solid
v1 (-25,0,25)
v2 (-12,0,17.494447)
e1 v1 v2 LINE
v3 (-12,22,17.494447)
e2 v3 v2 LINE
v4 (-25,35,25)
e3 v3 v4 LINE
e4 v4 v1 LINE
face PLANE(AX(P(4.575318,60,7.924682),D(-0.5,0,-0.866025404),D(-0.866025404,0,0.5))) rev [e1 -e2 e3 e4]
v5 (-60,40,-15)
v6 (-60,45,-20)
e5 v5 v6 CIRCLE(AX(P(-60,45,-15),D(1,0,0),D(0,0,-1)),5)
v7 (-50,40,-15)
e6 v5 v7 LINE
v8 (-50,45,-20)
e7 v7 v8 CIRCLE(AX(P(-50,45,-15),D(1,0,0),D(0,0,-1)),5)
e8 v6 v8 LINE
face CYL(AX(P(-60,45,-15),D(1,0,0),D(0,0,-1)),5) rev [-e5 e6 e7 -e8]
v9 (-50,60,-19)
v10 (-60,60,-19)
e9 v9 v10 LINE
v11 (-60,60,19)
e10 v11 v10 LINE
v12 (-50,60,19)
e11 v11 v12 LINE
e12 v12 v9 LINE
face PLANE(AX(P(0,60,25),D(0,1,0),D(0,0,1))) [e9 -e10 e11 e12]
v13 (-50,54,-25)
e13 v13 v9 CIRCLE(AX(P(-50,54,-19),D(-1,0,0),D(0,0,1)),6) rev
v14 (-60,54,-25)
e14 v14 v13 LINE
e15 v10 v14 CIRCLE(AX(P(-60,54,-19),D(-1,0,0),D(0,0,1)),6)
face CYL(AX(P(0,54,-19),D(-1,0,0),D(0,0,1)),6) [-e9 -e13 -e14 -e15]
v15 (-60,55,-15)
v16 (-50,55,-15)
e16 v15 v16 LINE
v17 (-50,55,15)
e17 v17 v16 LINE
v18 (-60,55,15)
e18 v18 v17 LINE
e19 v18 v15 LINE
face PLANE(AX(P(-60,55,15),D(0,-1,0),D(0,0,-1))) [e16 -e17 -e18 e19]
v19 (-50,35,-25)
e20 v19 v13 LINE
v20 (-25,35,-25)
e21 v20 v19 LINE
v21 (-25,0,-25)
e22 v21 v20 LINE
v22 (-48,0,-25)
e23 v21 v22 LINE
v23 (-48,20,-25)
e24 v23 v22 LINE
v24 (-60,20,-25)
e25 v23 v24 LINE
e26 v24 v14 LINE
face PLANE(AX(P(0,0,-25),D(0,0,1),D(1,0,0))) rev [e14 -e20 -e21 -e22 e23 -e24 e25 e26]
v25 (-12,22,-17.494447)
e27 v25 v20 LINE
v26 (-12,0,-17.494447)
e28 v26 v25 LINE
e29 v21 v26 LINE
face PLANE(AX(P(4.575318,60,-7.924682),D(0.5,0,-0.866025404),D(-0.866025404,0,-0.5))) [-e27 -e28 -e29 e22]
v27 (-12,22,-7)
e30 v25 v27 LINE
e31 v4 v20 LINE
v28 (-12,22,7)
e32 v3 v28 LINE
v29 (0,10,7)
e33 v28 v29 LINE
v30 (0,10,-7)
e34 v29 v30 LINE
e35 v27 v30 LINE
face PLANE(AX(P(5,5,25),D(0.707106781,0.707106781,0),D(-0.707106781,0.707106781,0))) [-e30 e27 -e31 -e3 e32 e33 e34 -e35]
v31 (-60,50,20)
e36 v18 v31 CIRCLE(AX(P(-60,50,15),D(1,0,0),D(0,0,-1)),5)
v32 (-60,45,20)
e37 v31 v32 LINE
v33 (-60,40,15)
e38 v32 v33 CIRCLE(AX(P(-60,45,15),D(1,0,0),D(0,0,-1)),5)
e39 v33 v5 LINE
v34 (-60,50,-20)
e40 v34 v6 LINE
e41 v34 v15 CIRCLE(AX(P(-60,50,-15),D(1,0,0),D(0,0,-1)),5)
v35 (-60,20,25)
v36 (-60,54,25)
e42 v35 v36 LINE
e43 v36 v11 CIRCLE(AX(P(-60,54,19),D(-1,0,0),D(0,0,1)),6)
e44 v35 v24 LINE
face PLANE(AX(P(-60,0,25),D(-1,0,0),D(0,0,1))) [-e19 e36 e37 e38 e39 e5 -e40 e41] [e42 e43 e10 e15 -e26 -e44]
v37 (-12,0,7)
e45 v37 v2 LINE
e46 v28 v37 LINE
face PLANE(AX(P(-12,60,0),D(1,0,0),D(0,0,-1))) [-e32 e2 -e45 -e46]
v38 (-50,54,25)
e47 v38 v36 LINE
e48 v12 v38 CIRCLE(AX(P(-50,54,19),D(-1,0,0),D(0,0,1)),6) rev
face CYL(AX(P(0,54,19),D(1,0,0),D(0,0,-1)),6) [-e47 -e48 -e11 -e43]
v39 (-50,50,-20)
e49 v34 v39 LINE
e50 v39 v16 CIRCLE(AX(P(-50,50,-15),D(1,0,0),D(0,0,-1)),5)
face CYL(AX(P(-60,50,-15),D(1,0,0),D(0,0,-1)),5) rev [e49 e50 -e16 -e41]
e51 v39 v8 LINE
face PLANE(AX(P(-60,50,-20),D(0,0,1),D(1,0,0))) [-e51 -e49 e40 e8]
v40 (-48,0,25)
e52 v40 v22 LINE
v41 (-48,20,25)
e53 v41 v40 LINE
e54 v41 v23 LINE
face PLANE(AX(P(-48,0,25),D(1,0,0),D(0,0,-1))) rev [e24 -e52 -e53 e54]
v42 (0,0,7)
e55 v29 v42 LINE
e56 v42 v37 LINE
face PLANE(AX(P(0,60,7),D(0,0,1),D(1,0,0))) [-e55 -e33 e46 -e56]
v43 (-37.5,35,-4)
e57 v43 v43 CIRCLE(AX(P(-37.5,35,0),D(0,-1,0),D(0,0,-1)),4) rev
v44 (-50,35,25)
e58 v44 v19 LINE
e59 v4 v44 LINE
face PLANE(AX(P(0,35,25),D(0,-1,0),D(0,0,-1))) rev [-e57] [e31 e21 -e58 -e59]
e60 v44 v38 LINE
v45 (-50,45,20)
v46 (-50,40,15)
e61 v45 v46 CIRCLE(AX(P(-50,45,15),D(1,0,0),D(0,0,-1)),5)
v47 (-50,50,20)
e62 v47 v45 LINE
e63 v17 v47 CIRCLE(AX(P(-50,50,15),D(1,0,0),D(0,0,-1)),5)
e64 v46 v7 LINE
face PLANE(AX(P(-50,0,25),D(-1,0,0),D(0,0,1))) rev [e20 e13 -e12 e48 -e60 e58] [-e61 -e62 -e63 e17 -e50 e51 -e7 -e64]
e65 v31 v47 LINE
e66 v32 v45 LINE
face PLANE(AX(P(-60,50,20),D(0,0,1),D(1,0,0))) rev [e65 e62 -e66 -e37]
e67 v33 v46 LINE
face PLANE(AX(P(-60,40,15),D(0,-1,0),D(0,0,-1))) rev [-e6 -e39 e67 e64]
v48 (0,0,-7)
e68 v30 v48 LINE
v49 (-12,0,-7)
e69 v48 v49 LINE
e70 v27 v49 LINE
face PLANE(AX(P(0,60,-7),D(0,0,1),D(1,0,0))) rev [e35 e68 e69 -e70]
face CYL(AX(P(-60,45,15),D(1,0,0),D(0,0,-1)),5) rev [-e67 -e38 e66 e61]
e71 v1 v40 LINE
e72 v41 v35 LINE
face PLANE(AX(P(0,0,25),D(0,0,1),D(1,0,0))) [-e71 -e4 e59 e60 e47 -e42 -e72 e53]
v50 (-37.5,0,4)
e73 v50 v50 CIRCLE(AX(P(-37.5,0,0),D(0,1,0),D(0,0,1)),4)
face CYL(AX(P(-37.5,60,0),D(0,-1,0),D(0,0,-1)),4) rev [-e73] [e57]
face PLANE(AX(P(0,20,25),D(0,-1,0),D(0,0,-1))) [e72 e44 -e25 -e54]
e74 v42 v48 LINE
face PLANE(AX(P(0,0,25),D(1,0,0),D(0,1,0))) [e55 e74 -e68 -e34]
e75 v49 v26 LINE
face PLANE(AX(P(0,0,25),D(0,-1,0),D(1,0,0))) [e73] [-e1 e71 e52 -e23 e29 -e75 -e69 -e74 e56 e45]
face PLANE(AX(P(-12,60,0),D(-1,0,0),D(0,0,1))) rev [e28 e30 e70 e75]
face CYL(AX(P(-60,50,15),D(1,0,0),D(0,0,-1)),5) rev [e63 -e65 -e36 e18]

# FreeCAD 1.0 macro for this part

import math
import FreeCAD as App
import Part
import Sketcher
Q = App.Units.Quantity


def edges_at(feature, points):
    """Names of the edges that pass closest to the given points."""
    edges = feature.Shape.Edges
    near = lambda p: min(range(len(edges)), key=lambda i: edges[i].distToShape(Part.Vertex(*p))[0])
    return sorted({f"Edge{near(p) + 1}" for p in points})


def add_polygon(sketch, points):
    """Adds a closed chain of lines whose ends are joined by coincident constraints."""
    first, n = sketch.GeometryCount, len(points)
    for a, b in zip(points, points[1:] + points[:1]):
        sketch.addGeometry(Part.LineSegment(App.Vector(*a, 0), App.Vector(*b, 0)), False)
    for i in range(n):
        sketch.addConstraint(Sketcher.Constraint("Coincident", first + i, 2, first + (i + 1) % n, 1))

doc = App.newDocument("Part")
body = doc.addObject("PartDesign::Body", "Body")

sketch1 = body.newObject("Sketcher::SketchObject", "Sketch")
sketch1.AttachmentSupport = (doc.getObject("XY_Plane"), [""])
sketch1.MapMode = "FlatFace"
add_polygon(sketch1, [(-60, 60), (-60, 20), (-48, 20), (-48, 0), (0, 0), (0, 10), (-25, 35), (-50, 35), (-50, 60)])
sketch1.addConstraint(Sketcher.Constraint("Vertical", 0))
sketch1.addConstraint(Sketcher.Constraint("Horizontal", 1))
sketch1.addConstraint(Sketcher.Constraint("Vertical", 2))
sketch1.addConstraint(Sketcher.Constraint("Horizontal", 3))
sketch1.addConstraint(Sketcher.Constraint("Vertical", 4))
sketch1.addConstraint(Sketcher.Constraint("Horizontal", 6))
sketch1.addConstraint(Sketcher.Constraint("Vertical", 7))
sketch1.addConstraint(Sketcher.Constraint("Horizontal", 8))
sketch1.addConstraint(Sketcher.Constraint("Coincident", 3, 2, -1, 1))
sketch1.addConstraint(Sketcher.Constraint("Equal", 8, 4))
sketch1.addConstraint(Sketcher.Constraint("Equal", 6, 7))
sketch1.addConstraint(Sketcher.Constraint("DistanceX", 1, 1, 1, 2, 12.0))
sketch1.addConstraint(Sketcher.Constraint("DistanceX", 3, 1, 3, 2, 48.0))
sketch1.addConstraint(Sketcher.Constraint("DistanceX", 6, 2, 6, 1, 25.0))
sketch1.addConstraint(Sketcher.Constraint("DistanceX", 8, 2, 8, 1, 10.0))
sketch1.addConstraint(Sketcher.Constraint("DistanceY", 0, 2, 0, 1, 40.0))
sketch1.addConstraint(Sketcher.Constraint("DistanceY", 2, 2, 2, 1, 20.0))
pad1 = body.newObject("PartDesign::Pad", "Pad")
pad1.Profile = sketch1
pad1.Length = 50
pad1.Midplane = True

sketch2 = body.newObject("Sketcher::SketchObject", "Sketch001")
sketch2.AttachmentSupport = (doc.getObject("XZ_Plane"), [""])
sketch2.MapMode = "FlatFace"
sketch2.addGeometry(Part.Circle(App.Vector(-37.5, 0, 0), App.Vector(0, 0, 1), 4), False)
sketch2.addConstraint(Sketcher.Constraint("PointOnObject", 0, 3, -1))
sketch2.addConstraint(Sketcher.Constraint("Diameter", 0, 8.0))
sketch2.addConstraint(Sketcher.Constraint("DistanceX", 0, 3, -1, 1, 37.5))
pocket1 = body.newObject("PartDesign::Pocket", "Pocket")
pocket1.Profile = sketch2
pocket1.Type = "ThroughAll"

sketch3 = body.newObject("Sketcher::SketchObject", "Sketch002")
sketch3.AttachmentSupport = (doc.getObject("XZ_Plane"), [""])
sketch3.MapMode = "FlatFace"
add_polygon(sketch3, [(0, -25), (-25, -25), (-12, -17), (0, -11)])
add_polygon(sketch3, [(-12, 17), (-25, 25), (0, 25), (0, 11)])
sketch3.addConstraint(Sketcher.Constraint("Horizontal", 0))
sketch3.addConstraint(Sketcher.Constraint("Vertical", 3))
sketch3.addConstraint(Sketcher.Constraint("Horizontal", 5))
sketch3.addConstraint(Sketcher.Constraint("Vertical", 6))
sketch3.addConstraint(Sketcher.Constraint("Symmetric", 3, 2, 5, 2, -1, 1))
sketch3.addConstraint(Sketcher.Constraint("Symmetric", 2, 2, 6, 2, -1))
sketch3.addConstraint(Sketcher.Constraint("Symmetric", 1, 2, 7, 2, -1))
sketch3.addConstraint(Sketcher.Constraint("Parallel", 1, 2))
sketch3.addConstraint(Sketcher.Constraint("Parallel", 4, 7))
sketch3.addConstraint(Sketcher.Constraint("DistanceX", 0, 2, 0, 1, 25.0))
sketch3.addConstraint(Sketcher.Constraint("Angle", 1, Q("30 deg")))
sketch3.addConstraint(Sketcher.Constraint("DistanceY", 0, 2, -1, 1, 25.0))
sketch3.addConstraint(Sketcher.Constraint("DistanceX", 1, 2, -1, 1, 12.0))
pocket2 = body.newObject("PartDesign::Pocket", "Pocket001")
pocket2.Profile = sketch3
pocket2.Type = "ThroughAll"

sketch4 = body.newObject("Sketcher::SketchObject", "Sketch003")
sketch4.AttachmentSupport = (doc.getObject("XZ_Plane"), [""])
sketch4.MapMode = "FlatFace"
add_polygon(sketch4, [(0, -10.6), (-12, -17.5), (-12, -7), (0, -7)])
add_polygon(sketch4, [(-12, 7), (-12, 17.5), (0, 10.6), (0, 7)])
sketch4.addConstraint(Sketcher.Constraint("Vertical", 1))
sketch4.addConstraint(Sketcher.Constraint("Horizontal", 2))
sketch4.addConstraint(Sketcher.Constraint("Vertical", 3))
sketch4.addConstraint(Sketcher.Constraint("Vertical", 4))
sketch4.addConstraint(Sketcher.Constraint("Vertical", 6))
sketch4.addConstraint(Sketcher.Constraint("Horizontal", 7))
sketch4.addConstraint(Sketcher.Constraint("Symmetric", 3, 2, 5, 2, -1, 1))
sketch4.addConstraint(Sketcher.Constraint("Symmetric", 0, 2, 4, 2, -1))
sketch4.addConstraint(Sketcher.Constraint("Symmetric", 2, 2, 6, 2, -1))
sketch4.addConstraint(Sketcher.Constraint("DistanceX", 2, 1, 2, 2, 12.0))
sketch4.addConstraint(Sketcher.Constraint("Angle", 0, Q("-150 deg")))
sketch4.addConstraint(Sketcher.Constraint("DistanceY", 1, 2, -1, 1, 7.0))
sketch4.addConstraint(Sketcher.Constraint("DistanceY", 1, 1, 1, 2, 10.494447))
pocket3 = body.newObject("PartDesign::Pocket", "Pocket002")
pocket3.Profile = sketch4
pocket3.Type = "ThroughAll"

sketch5 = body.newObject("Sketcher::SketchObject", "Sketch004")
sketch5.AttachmentSupport = (doc.getObject("YZ_Plane"), [""])
sketch5.MapMode = "FlatFace"
sketch5.AttachmentOffset = App.Placement(App.Vector(0, 0, -50), App.Rotation())
sketch5.addGeometry(Part.LineSegment(App.Vector(55, -15, 0), App.Vector(55, 15, 0)), False)
sketch5.addGeometry(Part.ArcOfCircle(Part.Circle(App.Vector(50, 15, 0), App.Vector(0, 0, 1), 5), math.radians(0), math.radians(90)), False)
sketch5.addGeometry(Part.LineSegment(App.Vector(50, 20, 0), App.Vector(45, 20, 0)), False)
sketch5.addGeometry(Part.ArcOfCircle(Part.Circle(App.Vector(45, 15, 0), App.Vector(0, 0, 1), 5), math.radians(90), math.radians(180)), False)
sketch5.addGeometry(Part.LineSegment(App.Vector(40, 15, 0), App.Vector(40, -15, 0)), False)
sketch5.addGeometry(Part.ArcOfCircle(Part.Circle(App.Vector(45, -15, 0), App.Vector(0, 0, 1), 5), math.radians(180), math.radians(270)), False)
sketch5.addGeometry(Part.LineSegment(App.Vector(45, -20, 0), App.Vector(50, -20, 0)), False)
sketch5.addGeometry(Part.ArcOfCircle(Part.Circle(App.Vector(50, -15, 0), App.Vector(0, 0, 1), 5), math.radians(-90), math.radians(0)), False)
sketch5.addConstraint(Sketcher.Constraint("Tangent", 0, 2, 1, 1))
sketch5.addConstraint(Sketcher.Constraint("Tangent", 1, 2, 2, 1))
sketch5.addConstraint(Sketcher.Constraint("Tangent", 2, 2, 3, 1))
sketch5.addConstraint(Sketcher.Constraint("Tangent", 3, 2, 4, 1))
sketch5.addConstraint(Sketcher.Constraint("Tangent", 4, 2, 5, 1))
sketch5.addConstraint(Sketcher.Constraint("Tangent", 5, 2, 6, 1))
sketch5.addConstraint(Sketcher.Constraint("Tangent", 6, 2, 7, 1))
sketch5.addConstraint(Sketcher.Constraint("Tangent", 7, 2, 0, 1))
sketch5.addConstraint(Sketcher.Constraint("Vertical", 0))
sketch5.addConstraint(Sketcher.Constraint("Horizontal", 2))
sketch5.addConstraint(Sketcher.Constraint("Vertical", 4))
sketch5.addConstraint(Sketcher.Constraint("Horizontal", 6))
sketch5.addConstraint(Sketcher.Constraint("Equal", 1, 3))
sketch5.addConstraint(Sketcher.Constraint("Equal", 3, 5))
sketch5.addConstraint(Sketcher.Constraint("Equal", 5, 7))
sketch5.addConstraint(Sketcher.Constraint("Radius", 1, 5.0))
sketch5.addConstraint(Sketcher.Constraint("DistanceX", 2, 2, 2, 1, 5.0))
sketch5.addConstraint(Sketcher.Constraint("DistanceY", 0, 1, 0, 2, 30.0))
sketch5.addConstraint(Sketcher.Constraint("DistanceX", -1, 1, 1, 3, 50.0))
sketch5.addConstraint(Sketcher.Constraint("DistanceY", -1, 1, 1, 3, 15.0))
pocket4 = body.newObject("PartDesign::Pocket", "Pocket003")
pocket4.Profile = sketch5
pocket4.Type = "ThroughAll"
doc.recompute()

fillet = body.newObject("PartDesign::Fillet", "Fillet")
fillet.Base = (pocket4, edges_at(pocket4, [(-55, 60, -25), (-55, 60, 25)]))
fillet.Radius = 6

doc.recompute()
